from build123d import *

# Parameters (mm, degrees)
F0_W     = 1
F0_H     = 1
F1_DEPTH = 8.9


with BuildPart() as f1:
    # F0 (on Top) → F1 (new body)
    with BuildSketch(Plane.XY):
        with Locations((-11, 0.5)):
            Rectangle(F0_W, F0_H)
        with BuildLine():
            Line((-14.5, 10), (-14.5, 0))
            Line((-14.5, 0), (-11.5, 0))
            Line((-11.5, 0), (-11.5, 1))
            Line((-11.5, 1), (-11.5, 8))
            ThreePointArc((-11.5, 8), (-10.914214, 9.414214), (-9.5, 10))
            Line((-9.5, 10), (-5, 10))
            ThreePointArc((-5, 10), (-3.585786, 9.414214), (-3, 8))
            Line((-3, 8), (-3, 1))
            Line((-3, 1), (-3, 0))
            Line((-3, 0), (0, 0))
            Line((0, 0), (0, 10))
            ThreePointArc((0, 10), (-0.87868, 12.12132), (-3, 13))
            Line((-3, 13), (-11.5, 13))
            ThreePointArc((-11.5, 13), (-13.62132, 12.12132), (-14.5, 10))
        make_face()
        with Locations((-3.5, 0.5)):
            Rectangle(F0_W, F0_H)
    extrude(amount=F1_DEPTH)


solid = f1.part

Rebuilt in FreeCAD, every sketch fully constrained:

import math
import FreeCAD as App
import Part
import Sketcher

V = App.Vector

doc = App.newDocument("Part")
body = doc.addObject("PartDesign::Body", "Body")

sketch1 = body.newObject("Sketcher::SketchObject", "Sketch")
sketch1.AttachmentSupport = (doc.getObject("XY_Plane"), [""])
sketch1.MapMode = "FlatFace"
sketch1.addGeometry([
    Part.LineSegment(V(-10.5, 0, 0), V(-10.5, 1, 0)),
    Part.LineSegment(V(-10.5, 1, 0), V(-11.5, 1, 0)),
    Part.LineSegment(V(-11.5, 1, 0), V(-11.5, 8, 0)),
    Part.ArcOfCircle(Part.Circle(V(-9.5, 8, 0), V(0, 0, 1), 2), math.radians(90), math.radians(180)),
    Part.LineSegment(V(-9.5, 10, 0), V(-5, 10, 0)),
    Part.ArcOfCircle(Part.Circle(V(-5, 8, 0), V(0, 0, 1), 2), math.radians(0), math.radians(90)),
    Part.LineSegment(V(-3, 8, 0), V(-3, 1, 0)),
    Part.LineSegment(V(-3, 1, 0), V(-4, 1, 0)),
    Part.LineSegment(V(-4, 1, 0), V(-4, 0, 0)),
    Part.LineSegment(V(-4, 0, 0), V(0, 0, 0)),
    Part.LineSegment(V(0, 0, 0), V(0, 10, 0)),
    Part.ArcOfCircle(Part.Circle(V(-3, 10, 0), V(0, 0, 1), 3), math.radians(0), math.radians(90)),
    Part.LineSegment(V(-3, 13, 0), V(-11.5, 13, 0)),
    Part.ArcOfCircle(Part.Circle(V(-11.5, 10, 0), V(0, 0, 1), 3), math.radians(90), math.radians(180)),
    Part.LineSegment(V(-14.5, 10, 0), V(-14.5, 0, 0)),
    Part.LineSegment(V(-14.5, 0, 0), V(-10.5, 0, 0)),
], False)
sketch1.addConstraint([
    Sketcher.Constraint("Coincident", 0, 2, 1, 1),
    Sketcher.Constraint("Coincident", 1, 2, 2, 1),
    Sketcher.Constraint("Tangent", 2, 2, 3, 2),
    Sketcher.Constraint("Tangent", 3, 1, 4, 1),
    Sketcher.Constraint("Tangent", 4, 2, 5, 2),
    Sketcher.Constraint("Tangent", 5, 1, 6, 1),
    Sketcher.Constraint("Coincident", 6, 2, 7, 1),
    Sketcher.Constraint("Coincident", 7, 2, 8, 1),
    Sketcher.Constraint("Coincident", 8, 2, 9, 1),
    Sketcher.Constraint("Coincident", 9, 2, 10, 1),
    Sketcher.Constraint("Tangent", 10, 2, 11, 1),
    Sketcher.Constraint("Tangent", 11, 2, 12, 1),
    Sketcher.Constraint("Tangent", 12, 2, 13, 1),
    Sketcher.Constraint("Tangent", 13, 2, 14, 1),
    Sketcher.Constraint("Coincident", 14, 2, 15, 1),
    Sketcher.Constraint("Coincident", 15, 2, 0, 1),
    Sketcher.Constraint("Vertical", 0),
    Sketcher.Constraint("Horizontal", 1),
    Sketcher.Constraint("Vertical", 2),
    Sketcher.Constraint("Horizontal", 4),
    Sketcher.Constraint("Vertical", 6),
    Sketcher.Constraint("Horizontal", 7),
    Sketcher.Constraint("Vertical", 8),
    Sketcher.Constraint("Horizontal", 9),
    Sketcher.Constraint("Vertical", 10),
    Sketcher.Constraint("Horizontal", 12),
    Sketcher.Constraint("Vertical", 14),
    Sketcher.Constraint("Horizontal", 15),
    Sketcher.Constraint("Coincident", 9, 2, -1, 1),
    Sketcher.Constraint("Equal", 3, 5),
    Sketcher.Constraint("Equal", 11, 13),
    Sketcher.Constraint("PointOnObject", 14, 2, -1),
    Sketcher.Constraint("Horizontal", 13, 3, 3, 1),
    Sketcher.Constraint("Horizontal", 1, 2, 6, 2),
    Sketcher.Constraint("Vertical", 13, 3, 1, 2),
    Sketcher.Constraint("Vertical", 11, 3, 5, 1),
    Sketcher.Constraint("Equal", 1, 7),
    Sketcher.Constraint("Equal", 7, 0),
    Sketcher.Constraint("Radius", 3, 1.999999),
    Sketcher.Constraint("Radius", 11, 3.000001),
    Sketcher.Constraint("DistanceX", 1, 2, 1, 1, 1.0),
    Sketcher.Constraint("DistanceY", 2, 1, 2, 2, 7.0),
    Sketcher.Constraint("DistanceX", 4, 1, 4, 2, 4.5),
])
pad1 = body.newObject("PartDesign::Pad", "Pad")
pad1.Profile = sketch1
pad1.Length = 8.9

doc.recompute()
